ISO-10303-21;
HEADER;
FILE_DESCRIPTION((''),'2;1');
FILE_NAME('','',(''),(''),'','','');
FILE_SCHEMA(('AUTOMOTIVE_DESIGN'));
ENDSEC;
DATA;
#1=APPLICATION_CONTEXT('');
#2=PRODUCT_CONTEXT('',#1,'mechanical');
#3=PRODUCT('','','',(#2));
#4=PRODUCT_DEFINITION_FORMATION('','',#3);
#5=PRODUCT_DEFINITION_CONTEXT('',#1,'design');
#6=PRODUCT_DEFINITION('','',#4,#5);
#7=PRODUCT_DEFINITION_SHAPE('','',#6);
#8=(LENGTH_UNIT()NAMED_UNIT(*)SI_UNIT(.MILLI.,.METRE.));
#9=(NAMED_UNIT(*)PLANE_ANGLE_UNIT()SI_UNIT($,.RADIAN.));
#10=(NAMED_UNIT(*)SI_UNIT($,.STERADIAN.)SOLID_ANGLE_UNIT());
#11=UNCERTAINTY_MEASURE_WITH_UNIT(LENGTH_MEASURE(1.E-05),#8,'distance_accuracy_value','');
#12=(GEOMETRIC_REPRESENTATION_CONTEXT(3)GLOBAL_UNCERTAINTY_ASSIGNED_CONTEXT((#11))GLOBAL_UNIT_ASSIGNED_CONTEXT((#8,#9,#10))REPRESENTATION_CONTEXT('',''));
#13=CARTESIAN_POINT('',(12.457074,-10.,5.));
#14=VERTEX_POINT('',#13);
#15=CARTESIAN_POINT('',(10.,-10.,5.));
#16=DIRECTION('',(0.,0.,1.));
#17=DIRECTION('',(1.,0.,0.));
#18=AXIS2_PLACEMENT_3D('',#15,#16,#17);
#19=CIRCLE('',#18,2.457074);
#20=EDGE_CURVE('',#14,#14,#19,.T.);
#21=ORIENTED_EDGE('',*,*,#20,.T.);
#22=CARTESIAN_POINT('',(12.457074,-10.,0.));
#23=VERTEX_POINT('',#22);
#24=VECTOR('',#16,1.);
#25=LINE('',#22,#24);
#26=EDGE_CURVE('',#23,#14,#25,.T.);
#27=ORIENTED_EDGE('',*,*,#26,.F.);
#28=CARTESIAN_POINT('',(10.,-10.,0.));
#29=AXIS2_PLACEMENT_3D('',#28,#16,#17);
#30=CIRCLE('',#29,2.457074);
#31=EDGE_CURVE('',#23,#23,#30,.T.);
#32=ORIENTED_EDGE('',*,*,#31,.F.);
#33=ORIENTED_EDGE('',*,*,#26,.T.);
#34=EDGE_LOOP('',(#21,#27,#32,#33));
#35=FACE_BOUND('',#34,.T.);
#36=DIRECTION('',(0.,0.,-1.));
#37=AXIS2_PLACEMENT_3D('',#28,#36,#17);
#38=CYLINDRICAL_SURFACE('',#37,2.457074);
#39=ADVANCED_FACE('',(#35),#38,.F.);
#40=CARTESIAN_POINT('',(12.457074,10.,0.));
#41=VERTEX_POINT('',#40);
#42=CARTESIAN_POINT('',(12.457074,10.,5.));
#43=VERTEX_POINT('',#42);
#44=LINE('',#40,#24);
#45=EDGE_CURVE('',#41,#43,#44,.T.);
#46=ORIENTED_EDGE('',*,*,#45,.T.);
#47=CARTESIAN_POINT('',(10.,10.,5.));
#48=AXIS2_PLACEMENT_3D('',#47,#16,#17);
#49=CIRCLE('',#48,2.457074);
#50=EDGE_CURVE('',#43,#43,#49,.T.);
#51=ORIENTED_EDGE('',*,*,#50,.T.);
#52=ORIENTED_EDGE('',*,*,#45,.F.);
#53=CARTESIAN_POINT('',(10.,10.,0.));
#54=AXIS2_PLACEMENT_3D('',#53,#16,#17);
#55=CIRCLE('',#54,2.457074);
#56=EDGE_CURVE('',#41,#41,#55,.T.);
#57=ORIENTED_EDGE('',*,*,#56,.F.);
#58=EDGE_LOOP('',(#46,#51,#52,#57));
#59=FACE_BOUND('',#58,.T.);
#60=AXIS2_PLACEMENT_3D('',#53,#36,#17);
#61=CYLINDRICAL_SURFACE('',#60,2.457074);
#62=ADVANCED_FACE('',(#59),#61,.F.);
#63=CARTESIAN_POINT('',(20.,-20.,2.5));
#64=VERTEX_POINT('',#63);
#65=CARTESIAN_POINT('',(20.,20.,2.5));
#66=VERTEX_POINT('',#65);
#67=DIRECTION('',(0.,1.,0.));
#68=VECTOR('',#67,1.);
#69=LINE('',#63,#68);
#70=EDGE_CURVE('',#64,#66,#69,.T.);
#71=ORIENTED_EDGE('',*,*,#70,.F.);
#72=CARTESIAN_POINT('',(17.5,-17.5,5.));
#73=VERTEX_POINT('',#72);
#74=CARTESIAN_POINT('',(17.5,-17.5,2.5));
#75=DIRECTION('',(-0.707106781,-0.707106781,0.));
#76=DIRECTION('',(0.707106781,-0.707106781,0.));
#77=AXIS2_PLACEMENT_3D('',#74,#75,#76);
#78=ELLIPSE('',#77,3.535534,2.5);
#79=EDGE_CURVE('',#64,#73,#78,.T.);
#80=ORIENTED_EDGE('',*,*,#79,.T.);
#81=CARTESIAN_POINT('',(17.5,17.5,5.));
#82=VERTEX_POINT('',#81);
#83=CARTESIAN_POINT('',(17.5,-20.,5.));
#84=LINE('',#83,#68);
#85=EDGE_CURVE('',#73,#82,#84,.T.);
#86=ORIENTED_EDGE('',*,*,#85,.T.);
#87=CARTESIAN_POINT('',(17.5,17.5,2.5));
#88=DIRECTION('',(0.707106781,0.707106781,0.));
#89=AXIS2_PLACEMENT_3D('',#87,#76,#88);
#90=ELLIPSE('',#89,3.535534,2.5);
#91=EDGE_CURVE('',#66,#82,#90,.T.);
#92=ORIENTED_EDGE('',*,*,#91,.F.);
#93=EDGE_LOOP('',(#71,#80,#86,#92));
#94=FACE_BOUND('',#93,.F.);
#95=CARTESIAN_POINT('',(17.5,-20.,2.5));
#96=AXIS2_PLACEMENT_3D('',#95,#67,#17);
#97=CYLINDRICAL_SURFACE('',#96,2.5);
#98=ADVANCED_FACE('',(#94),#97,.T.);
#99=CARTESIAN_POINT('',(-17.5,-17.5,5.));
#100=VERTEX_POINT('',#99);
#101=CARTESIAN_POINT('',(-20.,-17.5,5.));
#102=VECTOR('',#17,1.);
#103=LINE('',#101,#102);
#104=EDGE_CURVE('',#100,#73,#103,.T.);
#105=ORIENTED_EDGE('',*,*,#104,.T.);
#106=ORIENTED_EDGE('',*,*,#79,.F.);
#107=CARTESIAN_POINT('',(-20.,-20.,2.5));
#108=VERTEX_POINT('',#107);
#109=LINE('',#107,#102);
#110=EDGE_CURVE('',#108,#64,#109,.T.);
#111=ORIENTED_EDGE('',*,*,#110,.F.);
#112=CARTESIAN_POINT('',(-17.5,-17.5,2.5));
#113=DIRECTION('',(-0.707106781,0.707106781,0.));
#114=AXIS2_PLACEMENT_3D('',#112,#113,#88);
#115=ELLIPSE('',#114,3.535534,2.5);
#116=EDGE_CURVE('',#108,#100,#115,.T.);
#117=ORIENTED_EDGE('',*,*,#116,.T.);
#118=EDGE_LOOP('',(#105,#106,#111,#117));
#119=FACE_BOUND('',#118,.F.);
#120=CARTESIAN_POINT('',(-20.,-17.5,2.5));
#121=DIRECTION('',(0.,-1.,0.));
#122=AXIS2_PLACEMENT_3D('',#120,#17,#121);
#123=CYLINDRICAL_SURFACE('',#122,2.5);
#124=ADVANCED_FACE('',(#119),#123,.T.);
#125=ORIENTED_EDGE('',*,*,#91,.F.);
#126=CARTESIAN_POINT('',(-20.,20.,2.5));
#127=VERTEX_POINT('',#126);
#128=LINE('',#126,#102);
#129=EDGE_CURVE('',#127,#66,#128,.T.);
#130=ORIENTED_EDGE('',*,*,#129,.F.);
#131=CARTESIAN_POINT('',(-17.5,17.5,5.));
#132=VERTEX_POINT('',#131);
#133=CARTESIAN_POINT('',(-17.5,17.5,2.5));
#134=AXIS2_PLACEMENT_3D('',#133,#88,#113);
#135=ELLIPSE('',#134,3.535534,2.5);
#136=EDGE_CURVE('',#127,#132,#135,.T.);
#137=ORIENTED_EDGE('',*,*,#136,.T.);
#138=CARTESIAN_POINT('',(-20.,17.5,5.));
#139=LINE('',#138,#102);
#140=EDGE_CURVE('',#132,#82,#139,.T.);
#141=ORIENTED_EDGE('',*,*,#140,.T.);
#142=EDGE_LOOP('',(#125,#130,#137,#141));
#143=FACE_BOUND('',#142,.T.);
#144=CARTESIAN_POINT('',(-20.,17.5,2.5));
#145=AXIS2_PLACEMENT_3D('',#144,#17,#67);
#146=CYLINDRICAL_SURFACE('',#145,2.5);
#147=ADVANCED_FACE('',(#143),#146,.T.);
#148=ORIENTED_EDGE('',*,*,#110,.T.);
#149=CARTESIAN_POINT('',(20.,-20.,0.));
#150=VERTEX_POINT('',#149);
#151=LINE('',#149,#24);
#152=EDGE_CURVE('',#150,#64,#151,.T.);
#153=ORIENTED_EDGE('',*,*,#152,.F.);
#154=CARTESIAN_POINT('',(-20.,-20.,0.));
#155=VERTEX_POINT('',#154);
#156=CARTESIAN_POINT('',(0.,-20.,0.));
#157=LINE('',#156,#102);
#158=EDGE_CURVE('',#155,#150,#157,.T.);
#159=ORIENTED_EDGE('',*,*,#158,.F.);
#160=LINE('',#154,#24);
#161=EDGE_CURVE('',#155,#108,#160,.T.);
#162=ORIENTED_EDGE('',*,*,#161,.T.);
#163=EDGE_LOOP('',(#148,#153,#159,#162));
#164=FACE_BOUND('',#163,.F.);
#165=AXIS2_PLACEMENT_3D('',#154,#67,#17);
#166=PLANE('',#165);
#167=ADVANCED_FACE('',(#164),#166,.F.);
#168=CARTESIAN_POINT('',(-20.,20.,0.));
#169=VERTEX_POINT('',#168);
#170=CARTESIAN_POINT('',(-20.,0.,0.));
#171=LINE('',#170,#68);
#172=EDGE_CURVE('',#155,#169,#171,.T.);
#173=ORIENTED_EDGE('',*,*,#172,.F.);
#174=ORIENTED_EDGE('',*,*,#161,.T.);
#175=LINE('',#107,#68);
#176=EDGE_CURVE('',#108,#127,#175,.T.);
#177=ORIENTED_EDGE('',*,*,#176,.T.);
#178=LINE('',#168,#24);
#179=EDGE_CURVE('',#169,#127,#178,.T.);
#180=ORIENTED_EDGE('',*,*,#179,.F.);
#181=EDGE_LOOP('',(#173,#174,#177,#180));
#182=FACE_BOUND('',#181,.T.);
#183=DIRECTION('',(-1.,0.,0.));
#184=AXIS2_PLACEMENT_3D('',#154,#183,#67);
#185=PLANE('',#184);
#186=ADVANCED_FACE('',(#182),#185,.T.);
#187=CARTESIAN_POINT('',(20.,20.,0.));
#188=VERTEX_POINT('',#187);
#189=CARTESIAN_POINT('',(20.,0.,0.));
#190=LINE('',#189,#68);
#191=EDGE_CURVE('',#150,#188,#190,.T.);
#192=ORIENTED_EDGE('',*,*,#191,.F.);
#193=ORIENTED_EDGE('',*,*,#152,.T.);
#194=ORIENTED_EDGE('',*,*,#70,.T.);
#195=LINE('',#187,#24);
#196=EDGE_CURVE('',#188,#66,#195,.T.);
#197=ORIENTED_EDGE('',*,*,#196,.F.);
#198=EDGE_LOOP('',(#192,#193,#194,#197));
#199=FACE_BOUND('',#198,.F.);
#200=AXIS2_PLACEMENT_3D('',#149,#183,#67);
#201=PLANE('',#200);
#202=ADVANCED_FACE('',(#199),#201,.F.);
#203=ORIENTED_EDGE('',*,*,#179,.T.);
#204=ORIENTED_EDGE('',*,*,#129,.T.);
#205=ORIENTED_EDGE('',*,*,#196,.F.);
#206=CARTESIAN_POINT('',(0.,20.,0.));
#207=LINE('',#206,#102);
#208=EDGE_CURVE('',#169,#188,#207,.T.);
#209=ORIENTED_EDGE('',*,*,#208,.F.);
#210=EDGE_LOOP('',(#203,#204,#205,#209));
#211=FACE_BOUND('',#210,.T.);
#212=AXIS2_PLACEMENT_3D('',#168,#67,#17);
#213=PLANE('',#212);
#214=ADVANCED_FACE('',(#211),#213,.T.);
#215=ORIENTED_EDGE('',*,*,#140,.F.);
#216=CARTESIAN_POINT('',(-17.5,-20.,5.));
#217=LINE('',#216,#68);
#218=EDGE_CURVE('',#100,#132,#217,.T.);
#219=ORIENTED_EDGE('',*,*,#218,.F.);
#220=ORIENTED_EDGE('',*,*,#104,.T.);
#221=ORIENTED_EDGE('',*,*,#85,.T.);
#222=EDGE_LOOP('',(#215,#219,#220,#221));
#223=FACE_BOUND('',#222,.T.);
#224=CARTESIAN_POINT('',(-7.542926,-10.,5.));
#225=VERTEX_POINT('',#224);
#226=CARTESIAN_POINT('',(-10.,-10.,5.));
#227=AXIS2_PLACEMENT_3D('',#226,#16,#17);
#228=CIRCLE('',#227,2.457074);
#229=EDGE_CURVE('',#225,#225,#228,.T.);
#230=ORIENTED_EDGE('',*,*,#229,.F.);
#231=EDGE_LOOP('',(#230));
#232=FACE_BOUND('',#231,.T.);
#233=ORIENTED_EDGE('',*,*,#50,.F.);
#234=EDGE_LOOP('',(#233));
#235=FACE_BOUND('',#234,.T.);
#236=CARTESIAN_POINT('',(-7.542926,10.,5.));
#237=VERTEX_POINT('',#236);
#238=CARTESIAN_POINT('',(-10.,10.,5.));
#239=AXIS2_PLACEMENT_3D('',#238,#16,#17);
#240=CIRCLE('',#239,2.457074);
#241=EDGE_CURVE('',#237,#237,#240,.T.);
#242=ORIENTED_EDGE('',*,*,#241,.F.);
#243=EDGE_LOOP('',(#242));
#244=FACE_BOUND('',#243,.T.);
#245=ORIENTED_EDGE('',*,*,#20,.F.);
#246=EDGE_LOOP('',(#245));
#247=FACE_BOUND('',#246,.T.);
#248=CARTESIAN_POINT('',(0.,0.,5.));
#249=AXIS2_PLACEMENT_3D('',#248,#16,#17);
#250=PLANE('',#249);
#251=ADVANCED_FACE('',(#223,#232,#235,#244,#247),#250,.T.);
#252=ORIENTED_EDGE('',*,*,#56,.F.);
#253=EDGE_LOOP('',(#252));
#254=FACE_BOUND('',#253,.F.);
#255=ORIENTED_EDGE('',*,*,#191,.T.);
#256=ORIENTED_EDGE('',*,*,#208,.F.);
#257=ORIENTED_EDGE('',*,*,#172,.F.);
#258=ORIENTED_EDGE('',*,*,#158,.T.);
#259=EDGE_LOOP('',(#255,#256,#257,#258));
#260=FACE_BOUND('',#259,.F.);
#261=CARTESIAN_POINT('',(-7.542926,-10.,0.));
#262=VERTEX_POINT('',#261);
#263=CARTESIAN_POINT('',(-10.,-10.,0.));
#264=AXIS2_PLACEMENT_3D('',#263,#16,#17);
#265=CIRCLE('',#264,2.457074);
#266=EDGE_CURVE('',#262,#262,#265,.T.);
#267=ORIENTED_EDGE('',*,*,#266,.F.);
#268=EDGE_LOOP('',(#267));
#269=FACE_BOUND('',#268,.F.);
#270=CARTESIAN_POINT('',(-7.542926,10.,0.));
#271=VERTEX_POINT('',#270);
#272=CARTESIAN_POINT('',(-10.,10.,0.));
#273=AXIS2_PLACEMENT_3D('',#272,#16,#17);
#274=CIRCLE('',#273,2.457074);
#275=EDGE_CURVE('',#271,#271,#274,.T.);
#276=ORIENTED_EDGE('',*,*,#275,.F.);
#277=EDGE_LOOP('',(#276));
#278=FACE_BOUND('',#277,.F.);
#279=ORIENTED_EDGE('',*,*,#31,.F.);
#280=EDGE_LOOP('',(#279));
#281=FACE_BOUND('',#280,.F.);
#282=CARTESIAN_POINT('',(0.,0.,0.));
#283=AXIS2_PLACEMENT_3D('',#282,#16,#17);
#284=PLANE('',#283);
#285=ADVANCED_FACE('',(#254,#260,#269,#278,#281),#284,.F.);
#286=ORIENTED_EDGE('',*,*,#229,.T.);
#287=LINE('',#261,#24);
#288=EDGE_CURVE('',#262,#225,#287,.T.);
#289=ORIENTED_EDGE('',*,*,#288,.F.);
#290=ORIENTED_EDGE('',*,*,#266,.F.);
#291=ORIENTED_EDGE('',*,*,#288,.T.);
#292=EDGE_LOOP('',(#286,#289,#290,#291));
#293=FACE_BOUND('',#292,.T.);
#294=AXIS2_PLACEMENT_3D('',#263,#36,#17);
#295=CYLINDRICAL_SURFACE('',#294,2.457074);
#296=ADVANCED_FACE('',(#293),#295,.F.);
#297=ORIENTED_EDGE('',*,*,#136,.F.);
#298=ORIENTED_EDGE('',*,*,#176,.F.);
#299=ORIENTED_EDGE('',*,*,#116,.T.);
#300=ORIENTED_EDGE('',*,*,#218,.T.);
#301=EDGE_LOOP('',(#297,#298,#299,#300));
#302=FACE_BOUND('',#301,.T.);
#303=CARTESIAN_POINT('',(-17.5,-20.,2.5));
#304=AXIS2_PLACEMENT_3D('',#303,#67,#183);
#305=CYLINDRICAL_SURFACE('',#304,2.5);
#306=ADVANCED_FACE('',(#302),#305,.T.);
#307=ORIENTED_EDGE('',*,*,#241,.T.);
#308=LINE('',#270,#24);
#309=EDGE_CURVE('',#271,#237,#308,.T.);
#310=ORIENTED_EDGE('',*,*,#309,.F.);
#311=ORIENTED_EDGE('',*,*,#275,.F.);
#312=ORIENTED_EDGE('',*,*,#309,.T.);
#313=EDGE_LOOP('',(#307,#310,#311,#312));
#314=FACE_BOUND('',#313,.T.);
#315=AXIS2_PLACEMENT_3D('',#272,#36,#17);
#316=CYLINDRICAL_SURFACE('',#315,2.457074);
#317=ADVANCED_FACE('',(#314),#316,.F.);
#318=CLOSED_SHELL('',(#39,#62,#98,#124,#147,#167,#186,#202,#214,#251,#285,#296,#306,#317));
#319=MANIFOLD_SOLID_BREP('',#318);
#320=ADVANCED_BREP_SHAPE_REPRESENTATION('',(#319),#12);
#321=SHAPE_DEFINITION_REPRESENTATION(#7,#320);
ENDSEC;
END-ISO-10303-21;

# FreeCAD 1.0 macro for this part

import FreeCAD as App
import Part
import Sketcher
Q = App.Units.Quantity


def edges_at(feature, points):
    """Names of the edges that pass closest to the given points."""
    edges = feature.Shape.Edges
    near = lambda p: min(range(len(edges)), key=lambda i: edges[i].distToShape(Part.Vertex(*p))[0])
    return sorted({f"Edge{near(p) + 1}" for p in points})


def add_polygon(sketch, points):
    """Adds a closed chain of lines whose ends are joined by coincident constraints."""
    first, n = sketch.GeometryCount, len(points)
    for a, b in zip(points, points[1:] + points[:1]):
        sketch.addGeometry(Part.LineSegment(App.Vector(*a, 0), App.Vector(*b, 0)), False)
    for i in range(n):
        sketch.addConstraint(Sketcher.Constraint("Coincident", first + i, 2, first + (i + 1) % n, 1))

doc = App.newDocument("Part")
params = doc.addObject("Spreadsheet::Sheet", "Params")
for row, (alias, value) in enumerate([
    ("sketch1_width", "40 mm"),
    ("pad1_length", "5 mm"),
    ("fillet_radius", "2.5 mm"),
], start=1):
    params.set(f"A{row}", alias)
    params.set(f"B{row}", "=" + value)
    params.setAlias(f"B{row}", alias)

body = doc.addObject("PartDesign::Body", "Body")

sketch1 = body.newObject("Sketcher::SketchObject", "Sketch")
sketch1.AttachmentSupport = (doc.getObject("XY_Plane"), [""])
sketch1.MapMode = "FlatFace"
add_polygon(sketch1, [(-20, 20), (-20, -20), (20, -20), (20, 20)])
sketch1.addGeometry(Part.Circle(App.Vector(-10, -10, 0), App.Vector(0, 0, 1), 2.457074), False)
sketch1.addGeometry(Part.Circle(App.Vector(10, -10, 0), App.Vector(0, 0, 1), 2.457074), False)
sketch1.addGeometry(Part.Circle(App.Vector(-10, 10, 0), App.Vector(0, 0, 1), 2.457074), False)
sketch1.addGeometry(Part.Circle(App.Vector(10, 10, 0), App.Vector(0, 0, 1), 2.457074), False)
sketch1.addConstraint([
    Sketcher.Constraint("Vertical", 0),
    Sketcher.Constraint("Horizontal", 1),
    Sketcher.Constraint("Vertical", 2),
    Sketcher.Constraint("Horizontal", 3),
    Sketcher.Constraint("Equal", 4, 5),
    Sketcher.Constraint("Equal", 5, 6),
    Sketcher.Constraint("Equal", 6, 7),
    Sketcher.Constraint("Symmetric", 5, 3, 6, 3, -1, 1),
    Sketcher.Constraint("Symmetric", 4, 3, 7, 3, -1, 1),
    Sketcher.Constraint("Symmetric", 0, 2, 2, 2, -1, 1),
    Sketcher.Constraint("Symmetric", 4, 3, 5, 3, -2),
    Sketcher.Constraint("Equal", 3, 0),
    Sketcher.Constraint("DistanceX", 1, 1, 1, 2, Q("40 mm")),
    Sketcher.Constraint("DistanceX", 4, 3, -1, 1, Q("10 mm")),
    Sketcher.Constraint("DistanceY", 4, 3, -1, 1, Q("10 mm")),
    Sketcher.Constraint("Diameter", 4, Q("4.914148 mm")),
])
sketch1.setExpression("Constraints[16]", "Params.sketch1_width")
pad1 = body.newObject("PartDesign::Pad", "Pad")
pad1.Profile = sketch1
pad1.setExpression("Length", "Params.pad1_length")
doc.recompute()

fillet = body.newObject("PartDesign::Fillet", "Fillet")
fillet.Base = (pad1, edges_at(pad1, [
    (0, -20, 5),
    (-20, 0, 5),
    (0, 20, 5),
    (20, 0, 5),
]))
fillet.setExpression("Radius", "Params.fillet_radius")

doc.recompute()
